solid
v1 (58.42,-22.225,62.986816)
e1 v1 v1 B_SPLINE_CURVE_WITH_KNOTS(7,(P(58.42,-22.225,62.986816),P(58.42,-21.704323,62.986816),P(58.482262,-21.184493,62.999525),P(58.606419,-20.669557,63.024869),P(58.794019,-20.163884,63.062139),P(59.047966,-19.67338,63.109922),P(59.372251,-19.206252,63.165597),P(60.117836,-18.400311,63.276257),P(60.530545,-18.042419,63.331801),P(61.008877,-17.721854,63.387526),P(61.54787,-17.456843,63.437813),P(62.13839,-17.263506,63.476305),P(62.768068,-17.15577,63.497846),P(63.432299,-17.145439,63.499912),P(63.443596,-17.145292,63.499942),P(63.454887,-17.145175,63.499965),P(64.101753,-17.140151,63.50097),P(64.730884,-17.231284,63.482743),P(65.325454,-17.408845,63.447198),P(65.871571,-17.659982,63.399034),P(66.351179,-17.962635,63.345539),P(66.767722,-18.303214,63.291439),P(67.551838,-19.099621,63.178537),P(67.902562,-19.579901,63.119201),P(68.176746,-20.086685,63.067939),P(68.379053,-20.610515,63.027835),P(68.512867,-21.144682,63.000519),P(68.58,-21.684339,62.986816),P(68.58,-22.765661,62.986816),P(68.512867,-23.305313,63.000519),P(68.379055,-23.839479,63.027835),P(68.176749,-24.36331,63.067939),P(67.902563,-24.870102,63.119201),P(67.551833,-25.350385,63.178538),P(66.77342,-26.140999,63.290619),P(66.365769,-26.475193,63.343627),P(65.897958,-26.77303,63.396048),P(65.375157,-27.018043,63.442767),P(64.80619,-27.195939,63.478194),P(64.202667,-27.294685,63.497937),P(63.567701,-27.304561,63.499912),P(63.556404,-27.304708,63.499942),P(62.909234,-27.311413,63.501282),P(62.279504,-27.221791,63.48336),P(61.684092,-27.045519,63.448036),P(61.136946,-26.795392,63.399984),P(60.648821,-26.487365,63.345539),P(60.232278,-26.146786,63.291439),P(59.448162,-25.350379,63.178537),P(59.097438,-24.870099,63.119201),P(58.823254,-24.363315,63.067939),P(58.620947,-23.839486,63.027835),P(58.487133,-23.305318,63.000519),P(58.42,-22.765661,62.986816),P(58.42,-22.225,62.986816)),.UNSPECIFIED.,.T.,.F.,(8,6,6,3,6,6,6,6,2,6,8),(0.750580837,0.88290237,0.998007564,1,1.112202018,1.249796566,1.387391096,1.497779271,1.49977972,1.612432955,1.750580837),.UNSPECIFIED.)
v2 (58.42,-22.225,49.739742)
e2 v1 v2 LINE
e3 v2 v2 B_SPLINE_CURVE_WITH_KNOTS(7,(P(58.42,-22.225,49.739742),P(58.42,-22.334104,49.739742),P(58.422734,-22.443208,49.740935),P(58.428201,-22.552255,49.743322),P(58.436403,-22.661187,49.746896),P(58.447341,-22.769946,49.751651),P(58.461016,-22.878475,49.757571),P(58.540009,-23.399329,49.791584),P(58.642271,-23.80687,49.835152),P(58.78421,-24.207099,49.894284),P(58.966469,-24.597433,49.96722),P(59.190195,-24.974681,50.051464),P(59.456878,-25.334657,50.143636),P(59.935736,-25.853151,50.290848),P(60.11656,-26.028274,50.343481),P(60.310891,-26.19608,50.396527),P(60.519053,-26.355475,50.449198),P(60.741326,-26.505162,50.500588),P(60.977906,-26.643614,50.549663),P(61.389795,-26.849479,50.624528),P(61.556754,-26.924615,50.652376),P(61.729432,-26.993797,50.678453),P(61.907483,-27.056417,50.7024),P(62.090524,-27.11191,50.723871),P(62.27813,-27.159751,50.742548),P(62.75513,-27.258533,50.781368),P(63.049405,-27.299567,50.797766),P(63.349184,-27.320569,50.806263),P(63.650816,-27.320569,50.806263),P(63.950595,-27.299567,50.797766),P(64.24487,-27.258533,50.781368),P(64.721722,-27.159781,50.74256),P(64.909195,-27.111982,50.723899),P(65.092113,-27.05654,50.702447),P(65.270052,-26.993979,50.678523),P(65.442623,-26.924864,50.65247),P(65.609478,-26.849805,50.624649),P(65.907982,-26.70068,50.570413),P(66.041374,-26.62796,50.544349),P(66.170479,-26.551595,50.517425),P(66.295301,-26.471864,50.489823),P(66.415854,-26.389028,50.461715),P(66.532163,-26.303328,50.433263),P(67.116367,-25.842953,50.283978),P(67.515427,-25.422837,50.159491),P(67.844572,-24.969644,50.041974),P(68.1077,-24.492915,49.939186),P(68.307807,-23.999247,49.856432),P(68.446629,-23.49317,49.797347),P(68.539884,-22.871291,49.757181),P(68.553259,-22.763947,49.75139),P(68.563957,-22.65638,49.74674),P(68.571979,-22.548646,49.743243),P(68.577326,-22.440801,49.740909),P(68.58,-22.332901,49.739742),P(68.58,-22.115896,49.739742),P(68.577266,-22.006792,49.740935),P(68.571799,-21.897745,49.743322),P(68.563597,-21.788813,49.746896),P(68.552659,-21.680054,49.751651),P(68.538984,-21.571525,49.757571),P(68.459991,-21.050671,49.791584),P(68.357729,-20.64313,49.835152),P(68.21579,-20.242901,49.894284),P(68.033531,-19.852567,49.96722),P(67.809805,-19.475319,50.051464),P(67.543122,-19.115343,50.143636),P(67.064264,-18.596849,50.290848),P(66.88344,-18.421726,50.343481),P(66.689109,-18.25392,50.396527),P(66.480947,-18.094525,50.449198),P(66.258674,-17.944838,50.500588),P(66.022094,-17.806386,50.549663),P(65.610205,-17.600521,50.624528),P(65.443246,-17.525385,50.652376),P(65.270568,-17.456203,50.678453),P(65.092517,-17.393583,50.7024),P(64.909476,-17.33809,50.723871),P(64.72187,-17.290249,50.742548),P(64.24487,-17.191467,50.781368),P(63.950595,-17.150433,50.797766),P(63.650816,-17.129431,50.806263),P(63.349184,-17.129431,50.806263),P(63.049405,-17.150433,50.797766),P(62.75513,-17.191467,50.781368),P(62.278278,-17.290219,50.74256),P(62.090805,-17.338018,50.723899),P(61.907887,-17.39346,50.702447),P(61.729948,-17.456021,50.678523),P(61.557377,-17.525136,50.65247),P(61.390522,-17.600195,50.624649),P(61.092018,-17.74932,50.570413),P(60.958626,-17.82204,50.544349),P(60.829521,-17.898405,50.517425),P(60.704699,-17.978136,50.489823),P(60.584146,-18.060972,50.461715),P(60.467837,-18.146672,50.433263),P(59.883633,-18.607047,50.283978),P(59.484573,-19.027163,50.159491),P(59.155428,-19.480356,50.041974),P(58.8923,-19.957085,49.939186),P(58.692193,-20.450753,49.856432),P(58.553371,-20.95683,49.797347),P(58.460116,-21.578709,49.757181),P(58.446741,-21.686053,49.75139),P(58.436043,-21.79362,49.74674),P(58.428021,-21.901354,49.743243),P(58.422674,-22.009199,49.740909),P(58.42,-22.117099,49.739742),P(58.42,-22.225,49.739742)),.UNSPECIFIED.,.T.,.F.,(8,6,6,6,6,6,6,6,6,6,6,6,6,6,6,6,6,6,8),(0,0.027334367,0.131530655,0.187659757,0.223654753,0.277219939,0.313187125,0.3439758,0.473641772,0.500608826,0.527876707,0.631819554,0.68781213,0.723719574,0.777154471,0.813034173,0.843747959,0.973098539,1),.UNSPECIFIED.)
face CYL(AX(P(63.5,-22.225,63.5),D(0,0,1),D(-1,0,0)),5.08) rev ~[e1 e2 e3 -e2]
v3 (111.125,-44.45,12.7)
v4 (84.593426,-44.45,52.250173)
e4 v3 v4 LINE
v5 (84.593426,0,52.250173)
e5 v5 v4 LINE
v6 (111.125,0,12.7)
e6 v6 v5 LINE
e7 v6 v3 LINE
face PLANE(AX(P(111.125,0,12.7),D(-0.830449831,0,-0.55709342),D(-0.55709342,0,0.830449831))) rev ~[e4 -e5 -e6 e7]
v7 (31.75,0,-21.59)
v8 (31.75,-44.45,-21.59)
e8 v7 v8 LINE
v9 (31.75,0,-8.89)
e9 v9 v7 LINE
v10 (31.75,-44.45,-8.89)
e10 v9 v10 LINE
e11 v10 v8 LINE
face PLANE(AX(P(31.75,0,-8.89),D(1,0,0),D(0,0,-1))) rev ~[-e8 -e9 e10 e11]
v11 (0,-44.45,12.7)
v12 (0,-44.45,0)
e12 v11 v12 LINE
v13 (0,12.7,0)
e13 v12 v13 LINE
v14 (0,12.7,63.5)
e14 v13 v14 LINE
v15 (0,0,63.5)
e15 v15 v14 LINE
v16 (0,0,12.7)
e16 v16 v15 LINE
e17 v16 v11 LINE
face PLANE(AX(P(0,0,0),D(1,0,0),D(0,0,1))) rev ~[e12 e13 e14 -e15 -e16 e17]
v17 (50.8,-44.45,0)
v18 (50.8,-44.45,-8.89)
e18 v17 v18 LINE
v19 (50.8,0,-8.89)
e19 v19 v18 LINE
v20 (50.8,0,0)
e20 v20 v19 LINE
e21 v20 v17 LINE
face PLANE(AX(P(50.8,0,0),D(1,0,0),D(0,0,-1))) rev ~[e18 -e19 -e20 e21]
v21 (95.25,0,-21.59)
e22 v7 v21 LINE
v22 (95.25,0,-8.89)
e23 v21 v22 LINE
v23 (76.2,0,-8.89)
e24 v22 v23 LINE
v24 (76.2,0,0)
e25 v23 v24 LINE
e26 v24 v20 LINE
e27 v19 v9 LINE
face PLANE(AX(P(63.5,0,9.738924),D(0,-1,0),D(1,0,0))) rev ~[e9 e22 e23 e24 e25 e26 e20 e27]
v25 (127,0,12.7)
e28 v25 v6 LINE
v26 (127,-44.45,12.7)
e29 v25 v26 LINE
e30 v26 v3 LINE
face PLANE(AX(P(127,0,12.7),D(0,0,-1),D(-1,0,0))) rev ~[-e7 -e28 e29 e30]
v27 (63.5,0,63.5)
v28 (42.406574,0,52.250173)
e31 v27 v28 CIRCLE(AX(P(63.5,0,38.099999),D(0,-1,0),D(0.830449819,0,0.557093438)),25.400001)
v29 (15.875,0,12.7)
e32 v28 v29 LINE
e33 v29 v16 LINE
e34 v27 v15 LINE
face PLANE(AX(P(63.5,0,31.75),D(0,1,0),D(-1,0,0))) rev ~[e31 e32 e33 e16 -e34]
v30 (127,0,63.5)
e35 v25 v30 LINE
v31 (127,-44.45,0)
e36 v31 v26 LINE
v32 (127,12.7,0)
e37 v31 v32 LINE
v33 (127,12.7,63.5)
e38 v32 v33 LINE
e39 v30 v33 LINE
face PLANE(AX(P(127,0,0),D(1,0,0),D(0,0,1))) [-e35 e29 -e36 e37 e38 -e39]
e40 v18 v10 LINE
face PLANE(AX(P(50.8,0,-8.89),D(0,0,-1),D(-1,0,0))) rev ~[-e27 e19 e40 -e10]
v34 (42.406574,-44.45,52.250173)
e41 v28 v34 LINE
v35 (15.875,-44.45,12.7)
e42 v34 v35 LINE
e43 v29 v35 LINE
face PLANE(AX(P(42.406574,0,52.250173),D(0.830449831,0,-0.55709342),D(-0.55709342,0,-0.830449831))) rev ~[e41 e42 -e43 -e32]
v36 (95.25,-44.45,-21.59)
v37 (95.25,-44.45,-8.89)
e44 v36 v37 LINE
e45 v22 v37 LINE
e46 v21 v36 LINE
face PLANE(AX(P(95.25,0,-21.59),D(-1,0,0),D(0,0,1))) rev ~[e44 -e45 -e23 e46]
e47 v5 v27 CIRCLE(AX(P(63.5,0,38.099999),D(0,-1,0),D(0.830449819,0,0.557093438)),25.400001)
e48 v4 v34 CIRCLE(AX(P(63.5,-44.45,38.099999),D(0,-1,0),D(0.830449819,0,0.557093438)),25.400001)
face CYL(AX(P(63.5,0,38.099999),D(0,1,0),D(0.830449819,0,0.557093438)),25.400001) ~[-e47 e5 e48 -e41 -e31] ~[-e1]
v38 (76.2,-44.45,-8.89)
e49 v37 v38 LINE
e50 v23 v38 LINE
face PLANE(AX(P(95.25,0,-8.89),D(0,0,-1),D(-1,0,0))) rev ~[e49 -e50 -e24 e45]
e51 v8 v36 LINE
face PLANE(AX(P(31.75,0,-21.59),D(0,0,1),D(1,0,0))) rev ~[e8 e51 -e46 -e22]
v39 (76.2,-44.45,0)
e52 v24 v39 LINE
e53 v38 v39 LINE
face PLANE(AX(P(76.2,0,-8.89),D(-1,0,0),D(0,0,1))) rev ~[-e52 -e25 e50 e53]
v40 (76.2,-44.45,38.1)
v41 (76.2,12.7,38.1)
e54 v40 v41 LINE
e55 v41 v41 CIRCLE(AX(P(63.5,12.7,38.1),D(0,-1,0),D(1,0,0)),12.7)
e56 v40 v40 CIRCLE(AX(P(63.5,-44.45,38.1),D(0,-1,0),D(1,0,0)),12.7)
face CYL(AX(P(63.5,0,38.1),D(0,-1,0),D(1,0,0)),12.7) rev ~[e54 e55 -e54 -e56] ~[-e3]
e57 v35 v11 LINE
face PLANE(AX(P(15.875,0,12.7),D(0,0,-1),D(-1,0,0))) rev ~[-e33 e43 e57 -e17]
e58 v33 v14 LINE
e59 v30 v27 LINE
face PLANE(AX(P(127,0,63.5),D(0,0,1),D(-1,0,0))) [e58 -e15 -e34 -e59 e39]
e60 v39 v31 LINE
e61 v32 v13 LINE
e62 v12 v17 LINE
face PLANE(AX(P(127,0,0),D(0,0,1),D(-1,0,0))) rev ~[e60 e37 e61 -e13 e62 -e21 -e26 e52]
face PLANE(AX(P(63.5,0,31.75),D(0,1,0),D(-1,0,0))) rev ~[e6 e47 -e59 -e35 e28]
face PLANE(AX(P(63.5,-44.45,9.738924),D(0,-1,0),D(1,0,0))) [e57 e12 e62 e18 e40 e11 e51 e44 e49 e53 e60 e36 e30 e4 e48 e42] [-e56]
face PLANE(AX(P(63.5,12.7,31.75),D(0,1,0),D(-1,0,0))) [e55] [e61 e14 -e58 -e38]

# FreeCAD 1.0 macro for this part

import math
import FreeCAD as App
import Part
import Sketcher

V = App.Vector
Q = App.Units.Quantity


def add_polygon(sketch, points):
    """Adds a closed chain of lines whose ends are joined by coincident constraints."""
    first, n = sketch.GeometryCount, len(points)
    for a, b in zip(points, points[1:] + points[:1]):
        sketch.addGeometry(Part.LineSegment(App.Vector(*a, 0), App.Vector(*b, 0)), False)
    for i in range(n):
        sketch.addConstraint(Sketcher.Constraint("Coincident", first + i, 2, first + (i + 1) % n, 1))

doc = App.newDocument("Part")
params = doc.addObject("Spreadsheet::Sheet", "Params")
for row, (alias, value) in enumerate([
    ("sketch1_diameter", "1 in"),
    ("sketch1_radius", "1 in"),
    ("sketch1_width", "2 in"),
    ("sketch1_width2", "2.5 in"),
    ("sketch1_height", "0.5 in"),
    ("pad1_length", "1.75 in"),
    ("sketch2_width", "5 in"),
    ("sketch2_height", "2.5 in"),
    ("pad2_length", "0.5 in"),
    ("sketch3_diameter", "1 in"),
    ("sketch4_diameter", "0.4 in"),
    ("pocket2_length", "1 in"),
], start=1):
    params.set(f"A{row}", alias)
    params.set(f"B{row}", "=" + value)
    params.setAlias(f"B{row}", alias)

body = doc.addObject("PartDesign::Body", "Body")

sketch1 = body.newObject("Sketcher::SketchObject", "Sketch")
sketch1.AttachmentSupport = (doc.getObject("XZ_Plane"), [""])
sketch1.MapMode = "FlatFace"
sketch1.addGeometry([
    Part.LineSegment(V(0, 12.7, 0), V(0, 0, 0)),
    Part.LineSegment(V(0, 0, 0), V(50.8, 0, 0)),
    Part.LineSegment(V(50.8, 0, 0), V(50.8, -8.89, 0)),
    Part.LineSegment(V(50.8, -8.89, 0), V(31.75, -8.89, 0)),
    Part.LineSegment(V(31.75, -8.89, 0), V(31.75, -21.59, 0)),
    Part.LineSegment(V(31.75, -21.59, 0), V(95.25, -21.59, 0)),
    Part.LineSegment(V(95.25, -21.59, 0), V(95.25, -8.89, 0)),
    Part.LineSegment(V(95.25, -8.89, 0), V(76.2, -8.89, 0)),
    Part.LineSegment(V(76.2, -8.89, 0), V(76.2, 0, 0)),
    Part.LineSegment(V(76.2, 0, 0), V(127, 0, 0)),
    Part.LineSegment(V(127, 0, 0), V(127, 12.7, 0)),
    Part.LineSegment(V(127, 12.7, 0), V(111.125, 12.7, 0)),
    Part.LineSegment(V(111.125, 12.7, 0), V(84.593426, 52.250173, 0)),
    Part.ArcOfCircle(Part.Circle(V(63.5, 38.099999, 0), V(0, 0, 1), 25.400001), math.radians(33.855027), math.radians(146.144973)),
    Part.LineSegment(V(42.406574, 52.250173, 0), V(15.875, 12.7, 0)),
    Part.LineSegment(V(15.875, 12.7, 0), V(0, 12.7, 0)),
    Part.Circle(V(63.5, 38.1, 0), V(0, 0, 1), 12.7),
], False)
sketch1.addConstraint([
    Sketcher.Constraint("Coincident", 0, 2, 1, 1),
    Sketcher.Constraint("Coincident", 1, 2, 2, 1),
    Sketcher.Constraint("Coincident", 2, 2, 3, 1),
    Sketcher.Constraint("Coincident", 3, 2, 4, 1),
    Sketcher.Constraint("Coincident", 4, 2, 5, 1),
    Sketcher.Constraint("Coincident", 5, 2, 6, 1),
    Sketcher.Constraint("Coincident", 6, 2, 7, 1),
    Sketcher.Constraint("Coincident", 7, 2, 8, 1),
    Sketcher.Constraint("Coincident", 8, 2, 9, 1),
    Sketcher.Constraint("Coincident", 9, 2, 10, 1),
    Sketcher.Constraint("Coincident", 10, 2, 11, 1),
    Sketcher.Constraint("Coincident", 11, 2, 12, 1),
    Sketcher.Constraint("Tangent", 12, 2, 13, 1),
    Sketcher.Constraint("Tangent", 13, 2, 14, 1),
    Sketcher.Constraint("Coincident", 14, 2, 15, 1),
    Sketcher.Constraint("Coincident", 15, 2, 0, 1),
    Sketcher.Constraint("Vertical", 0),
    Sketcher.Constraint("Horizontal", 1),
    Sketcher.Constraint("Vertical", 2),
    Sketcher.Constraint("Horizontal", 3),
    Sketcher.Constraint("Vertical", 4),
    Sketcher.Constraint("Horizontal", 5),
    Sketcher.Constraint("Vertical", 6),
    Sketcher.Constraint("Horizontal", 7),
    Sketcher.Constraint("Vertical", 8),
    Sketcher.Constraint("Horizontal", 9),
    Sketcher.Constraint("Vertical", 10),
    Sketcher.Constraint("Horizontal", 11),
    Sketcher.Constraint("Horizontal", 15),
    Sketcher.Constraint("Coincident", 0, 2, -1, 1),
    Sketcher.Constraint("Coincident", 16, 3, 13, 3),
    Sketcher.Constraint("PointOnObject", 8, 2, -1),
    Sketcher.Constraint("Horizontal", 3, 2, 6, 2),
    Sketcher.Constraint("Horizontal", 12, 2, 13, 2),
    Sketcher.Constraint("Horizontal", 11, 2, 14, 2),
    Sketcher.Constraint("Equal", 3, 7),
    Sketcher.Constraint("Equal", 1, 9),
    Sketcher.Constraint("Equal", 11, 15),
    Sketcher.Constraint("Equal", 0, 4),
    Sketcher.Constraint("Diameter", 16, Q("1 in")),
    Sketcher.Constraint("Radius", 13, Q("1 in")),
    Sketcher.Constraint("DistanceX", 1, 1, 1, 2, Q("2 in")),
    Sketcher.Constraint("DistanceX", 5, 1, 5, 2, Q("2.5 in")),
    Sketcher.Constraint("DistanceY", 0, 2, 0, 1, Q("0.5 in")),
    Sketcher.Constraint("DistanceX", -1, 1, 7, 2, Q("3 in")),
    Sketcher.Constraint("DistanceY", 2, 2, 2, 1, Q("0.35 in")),
    Sketcher.Constraint("DistanceY", -1, 1, 13, 3, Q("1.5 in")),
    Sketcher.Constraint("DistanceX", 11, 2, 11, 1, Q("0.625 in")),
])
sketch1.setExpression("Constraints[39]", "Params.sketch1_diameter")
sketch1.setExpression("Constraints[40]", "Params.sketch1_radius")
sketch1.setExpression("Constraints[41]", "Params.sketch1_width")
sketch1.setExpression("Constraints[42]", "Params.sketch1_width2")
sketch1.setExpression("Constraints[43]", "Params.sketch1_height")
pad1 = body.newObject("PartDesign::Pad", "Pad")
pad1.Profile = sketch1
pad1.setExpression("Length", "Params.pad1_length")

sketch2 = body.newObject("Sketcher::SketchObject", "Sketch001")
sketch2.AttachmentSupport = (doc.getObject("XZ_Plane"), [""])
sketch2.MapMode = "FlatFace"
add_polygon(sketch2, [(127, 63.5), (127, 0), (0, 0), (0, 63.5)])
sketch2.addConstraint([
    Sketcher.Constraint("Vertical", 0),
    Sketcher.Constraint("Horizontal", 1),
    Sketcher.Constraint("Vertical", 2),
    Sketcher.Constraint("Horizontal", 3),
    Sketcher.Constraint("Coincident", 1, 2, -1, 1),
    Sketcher.Constraint("DistanceX", 1, 2, 1, 1, Q("5 in")),
    Sketcher.Constraint("DistanceY", 0, 2, 0, 1, Q("2.5 in")),
])
sketch2.setExpression("Constraints[9]", "Params.sketch2_width")
sketch2.setExpression("Constraints[10]", "Params.sketch2_height")
pad2 = body.newObject("PartDesign::Pad", "Pad001")
pad2.Profile = sketch2
pad2.setExpression("Length", "Params.pad2_length")
pad2.Reversed = True

sketch3 = body.newObject("Sketcher::SketchObject", "Sketch002")
sketch3.AttachmentSupport = (doc.getObject("XZ_Plane"), [""])
sketch3.MapMode = "FlatFace"
sketch3.addGeometry(Part.Circle(V(63.5, 38.1, 0), V(0, 0, 1), 12.7), False)
sketch3.addConstraint([
    Sketcher.Constraint("Diameter", 0, Q("1 in")),
    Sketcher.Constraint("DistanceX", -1, 1, 0, 3, Q("2.5 in")),
    Sketcher.Constraint("DistanceY", -1, 1, 0, 3, Q("1.5 in")),
])
sketch3.setExpression("Constraints[0]", "Params.sketch3_diameter")
pocket1 = body.newObject("PartDesign::Pocket", "Pocket")
pocket1.Profile = sketch3
pocket1.Type = "ThroughAll"

sketch4 = body.newObject("Sketcher::SketchObject", "Sketch003")
sketch4.AttachmentSupport = (doc.getObject("XY_Plane"), [""])
sketch4.MapMode = "FlatFace"
sketch4.AttachmentOffset = App.Placement(V(0, 0, 2.5 * 25.4), App.Rotation())
sketch4.addGeometry(Part.Circle(V(63.5, -22.225, 0), V(0, 0, 1), 5.08), False)
sketch4.addConstraint([
    Sketcher.Constraint("Diameter", 0, Q("0.4 in")),
    Sketcher.Constraint("DistanceX", -1, 1, 0, 3, Q("2.5 in")),
    Sketcher.Constraint("DistanceY", 0, 3, -1, 1, Q("0.875 in")),
])
sketch4.setExpression("Constraints[0]", "Params.sketch4_diameter")
pocket2 = body.newObject("PartDesign::Pocket", "Pocket001")
pocket2.Profile = sketch4
pocket2.setExpression("Length", "Params.pocket2_length")

doc.recompute()
